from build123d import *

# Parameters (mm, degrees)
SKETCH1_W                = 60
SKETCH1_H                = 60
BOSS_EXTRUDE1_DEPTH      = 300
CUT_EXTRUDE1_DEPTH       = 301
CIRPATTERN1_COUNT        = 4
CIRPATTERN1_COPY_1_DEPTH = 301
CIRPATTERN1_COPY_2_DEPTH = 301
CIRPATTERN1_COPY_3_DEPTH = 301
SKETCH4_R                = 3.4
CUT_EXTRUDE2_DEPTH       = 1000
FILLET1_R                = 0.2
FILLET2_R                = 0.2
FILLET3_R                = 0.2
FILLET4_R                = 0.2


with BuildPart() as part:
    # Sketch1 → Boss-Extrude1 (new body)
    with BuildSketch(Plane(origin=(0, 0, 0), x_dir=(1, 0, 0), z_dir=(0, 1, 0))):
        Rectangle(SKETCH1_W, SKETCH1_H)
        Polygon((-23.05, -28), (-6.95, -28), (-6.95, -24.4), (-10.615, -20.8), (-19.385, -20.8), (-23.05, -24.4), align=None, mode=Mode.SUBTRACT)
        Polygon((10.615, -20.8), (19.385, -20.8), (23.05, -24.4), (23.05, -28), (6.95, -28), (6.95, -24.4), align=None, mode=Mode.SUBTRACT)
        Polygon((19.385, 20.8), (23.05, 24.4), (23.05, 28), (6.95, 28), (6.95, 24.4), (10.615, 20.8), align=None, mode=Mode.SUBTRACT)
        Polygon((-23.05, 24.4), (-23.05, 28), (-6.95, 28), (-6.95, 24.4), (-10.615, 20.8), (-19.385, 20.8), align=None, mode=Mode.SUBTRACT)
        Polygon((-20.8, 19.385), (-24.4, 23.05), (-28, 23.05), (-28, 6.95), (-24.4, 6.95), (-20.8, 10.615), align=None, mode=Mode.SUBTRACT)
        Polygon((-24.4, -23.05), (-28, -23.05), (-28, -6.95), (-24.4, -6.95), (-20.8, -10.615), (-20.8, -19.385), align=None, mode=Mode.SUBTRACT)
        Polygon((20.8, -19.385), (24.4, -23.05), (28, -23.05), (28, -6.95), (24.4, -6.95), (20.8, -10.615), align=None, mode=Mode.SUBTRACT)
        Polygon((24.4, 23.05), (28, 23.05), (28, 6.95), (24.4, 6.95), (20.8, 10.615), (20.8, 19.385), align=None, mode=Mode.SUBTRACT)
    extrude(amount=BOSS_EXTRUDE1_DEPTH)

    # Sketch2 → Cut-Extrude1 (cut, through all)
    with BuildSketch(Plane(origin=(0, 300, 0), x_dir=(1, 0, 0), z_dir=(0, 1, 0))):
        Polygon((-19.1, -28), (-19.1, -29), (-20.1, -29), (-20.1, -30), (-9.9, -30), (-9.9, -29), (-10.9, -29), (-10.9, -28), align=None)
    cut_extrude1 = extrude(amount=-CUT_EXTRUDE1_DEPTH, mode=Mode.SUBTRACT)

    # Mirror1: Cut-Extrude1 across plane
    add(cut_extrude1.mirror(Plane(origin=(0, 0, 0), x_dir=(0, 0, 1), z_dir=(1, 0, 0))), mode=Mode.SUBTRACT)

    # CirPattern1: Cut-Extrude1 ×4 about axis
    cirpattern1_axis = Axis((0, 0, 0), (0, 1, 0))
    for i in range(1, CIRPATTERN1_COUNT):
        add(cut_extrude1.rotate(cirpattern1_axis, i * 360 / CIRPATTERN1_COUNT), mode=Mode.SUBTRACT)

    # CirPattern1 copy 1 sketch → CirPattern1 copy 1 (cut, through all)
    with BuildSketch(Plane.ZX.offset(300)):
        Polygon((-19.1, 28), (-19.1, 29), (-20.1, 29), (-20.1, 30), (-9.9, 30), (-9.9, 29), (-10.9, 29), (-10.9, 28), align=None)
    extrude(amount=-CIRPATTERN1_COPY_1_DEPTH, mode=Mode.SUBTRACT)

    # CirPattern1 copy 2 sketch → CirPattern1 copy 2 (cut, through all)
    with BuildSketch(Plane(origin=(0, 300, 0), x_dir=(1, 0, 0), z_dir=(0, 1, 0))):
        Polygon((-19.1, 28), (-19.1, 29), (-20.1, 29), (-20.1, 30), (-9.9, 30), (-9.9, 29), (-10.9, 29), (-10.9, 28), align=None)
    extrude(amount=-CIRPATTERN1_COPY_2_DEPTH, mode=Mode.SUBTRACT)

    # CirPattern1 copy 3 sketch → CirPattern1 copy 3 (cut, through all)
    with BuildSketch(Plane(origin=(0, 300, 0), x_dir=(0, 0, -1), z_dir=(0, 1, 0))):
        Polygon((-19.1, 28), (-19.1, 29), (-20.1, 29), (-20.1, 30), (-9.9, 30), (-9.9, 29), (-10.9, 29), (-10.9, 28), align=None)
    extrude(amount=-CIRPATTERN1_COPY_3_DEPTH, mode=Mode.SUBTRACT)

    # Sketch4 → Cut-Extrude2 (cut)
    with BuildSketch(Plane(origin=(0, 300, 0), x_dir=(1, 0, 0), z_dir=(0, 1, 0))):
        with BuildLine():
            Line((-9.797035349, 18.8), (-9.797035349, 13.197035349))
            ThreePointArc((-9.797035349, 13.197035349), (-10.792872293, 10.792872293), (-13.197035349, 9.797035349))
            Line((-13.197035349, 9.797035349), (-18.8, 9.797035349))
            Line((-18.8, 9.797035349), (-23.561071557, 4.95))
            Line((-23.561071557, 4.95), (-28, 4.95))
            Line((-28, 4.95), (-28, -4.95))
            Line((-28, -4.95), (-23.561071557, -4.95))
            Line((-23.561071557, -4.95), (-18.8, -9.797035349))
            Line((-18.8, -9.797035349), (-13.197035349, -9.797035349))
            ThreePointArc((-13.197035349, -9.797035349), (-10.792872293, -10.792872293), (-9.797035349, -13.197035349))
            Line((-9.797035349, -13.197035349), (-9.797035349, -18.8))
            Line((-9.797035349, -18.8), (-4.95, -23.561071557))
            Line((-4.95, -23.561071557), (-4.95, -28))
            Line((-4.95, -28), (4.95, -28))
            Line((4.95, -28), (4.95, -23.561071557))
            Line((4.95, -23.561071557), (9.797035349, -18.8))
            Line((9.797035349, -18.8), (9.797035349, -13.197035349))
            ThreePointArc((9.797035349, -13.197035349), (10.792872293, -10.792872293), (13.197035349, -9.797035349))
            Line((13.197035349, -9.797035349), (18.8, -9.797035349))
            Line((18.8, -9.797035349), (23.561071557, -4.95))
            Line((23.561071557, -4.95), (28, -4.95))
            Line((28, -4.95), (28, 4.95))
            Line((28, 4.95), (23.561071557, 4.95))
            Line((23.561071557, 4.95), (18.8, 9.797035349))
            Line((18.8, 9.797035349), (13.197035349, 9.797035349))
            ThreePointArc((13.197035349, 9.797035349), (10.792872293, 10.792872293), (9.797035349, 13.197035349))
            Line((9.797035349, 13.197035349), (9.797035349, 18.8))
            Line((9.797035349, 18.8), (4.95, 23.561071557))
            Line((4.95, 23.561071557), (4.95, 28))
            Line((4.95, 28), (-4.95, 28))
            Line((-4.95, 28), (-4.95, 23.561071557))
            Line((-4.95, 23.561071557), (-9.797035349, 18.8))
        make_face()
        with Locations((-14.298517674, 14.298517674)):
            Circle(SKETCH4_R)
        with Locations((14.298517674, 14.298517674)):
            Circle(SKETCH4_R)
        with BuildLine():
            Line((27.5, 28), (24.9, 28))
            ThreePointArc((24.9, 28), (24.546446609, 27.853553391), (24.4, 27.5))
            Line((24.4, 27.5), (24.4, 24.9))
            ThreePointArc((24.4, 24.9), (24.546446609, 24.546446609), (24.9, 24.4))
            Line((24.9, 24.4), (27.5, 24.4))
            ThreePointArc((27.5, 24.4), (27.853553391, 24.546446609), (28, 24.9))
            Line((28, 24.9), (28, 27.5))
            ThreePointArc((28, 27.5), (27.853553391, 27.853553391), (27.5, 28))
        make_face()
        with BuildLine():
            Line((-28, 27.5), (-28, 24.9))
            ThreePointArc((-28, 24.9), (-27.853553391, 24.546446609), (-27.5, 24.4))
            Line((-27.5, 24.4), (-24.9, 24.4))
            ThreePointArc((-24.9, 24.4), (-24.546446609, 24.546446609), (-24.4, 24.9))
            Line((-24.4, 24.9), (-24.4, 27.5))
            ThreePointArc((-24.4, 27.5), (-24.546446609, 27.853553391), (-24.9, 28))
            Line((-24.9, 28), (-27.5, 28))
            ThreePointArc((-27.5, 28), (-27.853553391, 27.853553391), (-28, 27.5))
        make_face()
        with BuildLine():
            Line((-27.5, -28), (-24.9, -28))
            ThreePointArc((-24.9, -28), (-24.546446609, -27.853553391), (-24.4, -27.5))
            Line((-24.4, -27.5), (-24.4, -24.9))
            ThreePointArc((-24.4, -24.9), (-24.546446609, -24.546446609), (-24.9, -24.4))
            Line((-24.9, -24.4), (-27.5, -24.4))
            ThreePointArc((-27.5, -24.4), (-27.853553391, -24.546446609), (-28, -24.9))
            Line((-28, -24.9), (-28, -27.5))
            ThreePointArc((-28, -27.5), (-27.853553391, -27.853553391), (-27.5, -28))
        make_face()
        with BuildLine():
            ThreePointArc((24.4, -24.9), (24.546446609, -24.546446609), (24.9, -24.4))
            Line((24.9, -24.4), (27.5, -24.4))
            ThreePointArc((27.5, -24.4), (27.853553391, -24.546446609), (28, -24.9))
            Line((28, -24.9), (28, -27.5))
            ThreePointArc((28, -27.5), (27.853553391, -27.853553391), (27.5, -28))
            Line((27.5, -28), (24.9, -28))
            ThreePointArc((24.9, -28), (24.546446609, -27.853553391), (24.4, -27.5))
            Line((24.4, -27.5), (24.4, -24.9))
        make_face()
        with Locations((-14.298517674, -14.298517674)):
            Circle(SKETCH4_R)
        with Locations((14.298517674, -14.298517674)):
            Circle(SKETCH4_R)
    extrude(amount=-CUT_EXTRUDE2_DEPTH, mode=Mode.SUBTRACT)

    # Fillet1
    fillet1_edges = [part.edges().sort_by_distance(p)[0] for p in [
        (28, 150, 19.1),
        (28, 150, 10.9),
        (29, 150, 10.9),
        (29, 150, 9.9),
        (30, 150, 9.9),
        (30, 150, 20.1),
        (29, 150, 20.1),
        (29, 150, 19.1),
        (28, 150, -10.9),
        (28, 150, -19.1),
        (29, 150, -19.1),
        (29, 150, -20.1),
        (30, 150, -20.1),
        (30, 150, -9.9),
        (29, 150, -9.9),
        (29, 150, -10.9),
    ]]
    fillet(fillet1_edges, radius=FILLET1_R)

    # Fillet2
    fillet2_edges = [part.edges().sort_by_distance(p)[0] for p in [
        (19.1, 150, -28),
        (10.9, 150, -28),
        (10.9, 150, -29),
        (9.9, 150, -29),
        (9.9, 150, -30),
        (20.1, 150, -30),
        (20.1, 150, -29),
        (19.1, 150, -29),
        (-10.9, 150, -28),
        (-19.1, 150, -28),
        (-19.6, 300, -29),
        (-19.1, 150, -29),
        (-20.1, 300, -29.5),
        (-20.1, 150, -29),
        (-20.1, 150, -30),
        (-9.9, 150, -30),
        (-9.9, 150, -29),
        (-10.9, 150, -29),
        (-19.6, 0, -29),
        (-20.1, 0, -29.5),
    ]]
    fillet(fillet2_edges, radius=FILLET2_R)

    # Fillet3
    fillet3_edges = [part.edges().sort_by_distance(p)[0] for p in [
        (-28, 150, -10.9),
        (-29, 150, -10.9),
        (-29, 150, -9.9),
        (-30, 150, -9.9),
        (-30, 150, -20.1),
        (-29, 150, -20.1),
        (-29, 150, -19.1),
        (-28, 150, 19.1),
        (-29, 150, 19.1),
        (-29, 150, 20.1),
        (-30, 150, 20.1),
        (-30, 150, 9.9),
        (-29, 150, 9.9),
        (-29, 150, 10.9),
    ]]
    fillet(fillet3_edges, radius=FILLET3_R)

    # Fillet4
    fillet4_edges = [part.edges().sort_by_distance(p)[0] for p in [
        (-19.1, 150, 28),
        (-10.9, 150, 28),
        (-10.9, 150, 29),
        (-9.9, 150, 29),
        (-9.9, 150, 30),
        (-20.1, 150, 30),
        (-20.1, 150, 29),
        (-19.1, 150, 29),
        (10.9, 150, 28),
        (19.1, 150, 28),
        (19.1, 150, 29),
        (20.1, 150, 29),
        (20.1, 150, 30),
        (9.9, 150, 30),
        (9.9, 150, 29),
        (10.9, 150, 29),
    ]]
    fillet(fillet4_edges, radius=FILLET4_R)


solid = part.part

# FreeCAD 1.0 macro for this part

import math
import FreeCAD as App
import Part
import Sketcher


def edges_at(feature, points):
    """Names of the edges that pass closest to the given points."""
    edges = feature.Shape.Edges
    near = lambda p: min(range(len(edges)), key=lambda i: edges[i].distToShape(Part.Vertex(*p))[0])
    return sorted({f"Edge{near(p) + 1}" for p in points})

doc = App.newDocument("Part")
body = doc.addObject("PartDesign::Body", "Body")

sketch1 = doc.addObject("Sketcher::SketchObject", "Sketch")
body.addObject(sketch1)
sketch1.AttachmentSupport = (doc.XZ_Plane, [""])
sketch1.MapMode = "FlatFace"
sketch1.addGeometry([
    Part.LineSegment(App.Vector(-30, -30, 0), App.Vector(-30, 30, 0)),
    Part.LineSegment(App.Vector(-30, 30, 0), App.Vector(30, 30, 0)),
    Part.LineSegment(App.Vector(30, 30, 0), App.Vector(30, -30, 0)),
    Part.LineSegment(App.Vector(30, -30, 0), App.Vector(-30, -30, 0)),
    Part.LineSegment(App.Vector(-7, 28, 0), App.Vector(-23.1, 28, 0)),
    Part.LineSegment(App.Vector(-23.1, 28, 0), App.Vector(-23.1, 24.4, 0)),
    Part.LineSegment(App.Vector(-23.1, 24.4, 0), App.Vector(-19.4, 20.8, 0)),
    Part.LineSegment(App.Vector(-19.4, 20.8, 0), App.Vector(-10.6, 20.8, 0)),
    Part.LineSegment(App.Vector(-10.6, 20.8, 0), App.Vector(-7, 24.4, 0)),
    Part.LineSegment(App.Vector(-7, 24.4, 0), App.Vector(-7, 28, 0)),
    Part.LineSegment(App.Vector(-20.8, 19.4, 0), App.Vector(-24.4, 23.1, 0)),
    Part.LineSegment(App.Vector(-24.4, 23.1, 0), App.Vector(-28, 23.1, 0)),
    Part.LineSegment(App.Vector(-28, 23.1, 0), App.Vector(-28, 7, 0)),
    Part.LineSegment(App.Vector(-28, 7, 0), App.Vector(-24.4, 7, 0)),
    Part.LineSegment(App.Vector(-24.4, 7, 0), App.Vector(-20.8, 10.6, 0)),
    Part.LineSegment(App.Vector(-20.8, 10.6, 0), App.Vector(-20.8, 19.4, 0)),
    Part.LineSegment(App.Vector(7, 24.4, 0), App.Vector(10.6, 20.8, 0)),
    Part.LineSegment(App.Vector(10.6, 20.8, 0), App.Vector(19.4, 20.8, 0)),
    Part.LineSegment(App.Vector(19.4, 20.8, 0), App.Vector(23.1, 24.4, 0)),
    Part.LineSegment(App.Vector(23.1, 24.4, 0), App.Vector(23.1, 28, 0)),
    Part.LineSegment(App.Vector(23.1, 28, 0), App.Vector(7, 28, 0)),
    Part.LineSegment(App.Vector(7, 28, 0), App.Vector(7, 24.4, 0)),
    Part.LineSegment(App.Vector(24.4, 23.1, 0), App.Vector(20.8, 19.4, 0)),
    Part.LineSegment(App.Vector(20.8, 19.4, 0), App.Vector(20.8, 10.6, 0)),
    Part.LineSegment(App.Vector(20.8, 10.6, 0), App.Vector(24.4, 7, 0)),
    Part.LineSegment(App.Vector(24.4, 7, 0), App.Vector(28, 7, 0)),
    Part.LineSegment(App.Vector(28, 7, 0), App.Vector(28, 23.1, 0)),
    Part.LineSegment(App.Vector(28, 23.1, 0), App.Vector(24.4, 23.1, 0)),
    Part.LineSegment(App.Vector(-24.4, -23.1, 0), App.Vector(-20.8, -19.4, 0)),
    Part.LineSegment(App.Vector(-20.8, -19.4, 0), App.Vector(-20.8, -10.6, 0)),
    Part.LineSegment(App.Vector(-20.8, -10.6, 0), App.Vector(-24.4, -7, 0)),
    Part.LineSegment(App.Vector(-24.4, -7, 0), App.Vector(-28, -7, 0)),
    Part.LineSegment(App.Vector(-28, -7, 0), App.Vector(-28, -23.1, 0)),
    Part.LineSegment(App.Vector(-28, -23.1, 0), App.Vector(-24.4, -23.1, 0)),
    Part.LineSegment(App.Vector(-19.4, -20.8, 0), App.Vector(-23.1, -24.4, 0)),
    Part.LineSegment(App.Vector(-23.1, -24.4, 0), App.Vector(-23.1, -28, 0)),
    Part.LineSegment(App.Vector(-23.1, -28, 0), App.Vector(-7, -28, 0)),
    Part.LineSegment(App.Vector(-7, -28, 0), App.Vector(-7, -24.4, 0)),
    Part.LineSegment(App.Vector(-7, -24.4, 0), App.Vector(-10.6, -20.8, 0)),
    Part.LineSegment(App.Vector(-10.6, -20.8, 0), App.Vector(-19.4, -20.8, 0)),
    Part.LineSegment(App.Vector(20.8, -19.4, 0), App.Vector(24.4, -23.1, 0)),
    Part.LineSegment(App.Vector(24.4, -23.1, 0), App.Vector(28, -23.1, 0)),
    Part.LineSegment(App.Vector(28, -23.1, 0), App.Vector(28, -7, 0)),
    Part.LineSegment(App.Vector(28, -7, 0), App.Vector(24.4, -7, 0)),
    Part.LineSegment(App.Vector(24.4, -7, 0), App.Vector(20.8, -10.6, 0)),
    Part.LineSegment(App.Vector(20.8, -10.6, 0), App.Vector(20.8, -19.4, 0)),
    Part.LineSegment(App.Vector(23.1, -24.4, 0), App.Vector(19.4, -20.8, 0)),
    Part.LineSegment(App.Vector(19.4, -20.8, 0), App.Vector(10.6, -20.8, 0)),
    Part.LineSegment(App.Vector(10.6, -20.8, 0), App.Vector(7, -24.4, 0)),
    Part.LineSegment(App.Vector(7, -24.4, 0), App.Vector(7, -28, 0)),
    Part.LineSegment(App.Vector(7, -28, 0), App.Vector(23.1, -28, 0)),
    Part.LineSegment(App.Vector(23.1, -28, 0), App.Vector(23.1, -24.4, 0)),
], False)
sketch1.addConstraint([
    Sketcher.Constraint("Coincident", 0, 2, 1, 1),
    Sketcher.Constraint("Coincident", 1, 2, 2, 1),
    Sketcher.Constraint("Coincident", 2, 2, 3, 1),
    Sketcher.Constraint("Coincident", 3, 2, 0, 1),
    Sketcher.Constraint("Coincident", 4, 2, 5, 1),
    Sketcher.Constraint("Coincident", 5, 2, 6, 1),
    Sketcher.Constraint("Coincident", 6, 2, 7, 1),
    Sketcher.Constraint("Coincident", 7, 2, 8, 1),
    Sketcher.Constraint("Coincident", 8, 2, 9, 1),
    Sketcher.Constraint("Coincident", 9, 2, 4, 1),
    Sketcher.Constraint("Coincident", 10, 2, 11, 1),
    Sketcher.Constraint("Coincident", 11, 2, 12, 1),
    Sketcher.Constraint("Coincident", 12, 2, 13, 1),
    Sketcher.Constraint("Coincident", 13, 2, 14, 1),
    Sketcher.Constraint("Coincident", 14, 2, 15, 1),
    Sketcher.Constraint("Coincident", 15, 2, 10, 1),
    Sketcher.Constraint("Coincident", 16, 2, 17, 1),
    Sketcher.Constraint("Coincident", 17, 2, 18, 1),
    Sketcher.Constraint("Coincident", 18, 2, 19, 1),
    Sketcher.Constraint("Coincident", 19, 2, 20, 1),
    Sketcher.Constraint("Coincident", 20, 2, 21, 1),
    Sketcher.Constraint("Coincident", 21, 2, 16, 1),
    Sketcher.Constraint("Coincident", 22, 2, 23, 1),
    Sketcher.Constraint("Coincident", 23, 2, 24, 1),
    Sketcher.Constraint("Coincident", 24, 2, 25, 1),
    Sketcher.Constraint("Coincident", 25, 2, 26, 1),
    Sketcher.Constraint("Coincident", 26, 2, 27, 1),
    Sketcher.Constraint("Coincident", 27, 2, 22, 1),
    Sketcher.Constraint("Coincident", 28, 2, 29, 1),
    Sketcher.Constraint("Coincident", 29, 2, 30, 1),
    Sketcher.Constraint("Coincident", 30, 2, 31, 1),
    Sketcher.Constraint("Coincident", 31, 2, 32, 1),
    Sketcher.Constraint("Coincident", 32, 2, 33, 1),
    Sketcher.Constraint("Coincident", 33, 2, 28, 1),
    Sketcher.Constraint("Coincident", 34, 2, 35, 1),
    Sketcher.Constraint("Coincident", 35, 2, 36, 1),
    Sketcher.Constraint("Coincident", 36, 2, 37, 1),
    Sketcher.Constraint("Coincident", 37, 2, 38, 1),
    Sketcher.Constraint("Coincident", 38, 2, 39, 1),
    Sketcher.Constraint("Coincident", 39, 2, 34, 1),
    Sketcher.Constraint("Coincident", 40, 2, 41, 1),
    Sketcher.Constraint("Coincident", 41, 2, 42, 1),
    Sketcher.Constraint("Coincident", 42, 2, 43, 1),
    Sketcher.Constraint("Coincident", 43, 2, 44, 1),
    Sketcher.Constraint("Coincident", 44, 2, 45, 1),
    Sketcher.Constraint("Coincident", 45, 2, 40, 1),
    Sketcher.Constraint("Coincident", 46, 2, 47, 1),
    Sketcher.Constraint("Coincident", 47, 2, 48, 1),
    Sketcher.Constraint("Coincident", 48, 2, 49, 1),
    Sketcher.Constraint("Coincident", 49, 2, 50, 1),
    Sketcher.Constraint("Coincident", 50, 2, 51, 1),
    Sketcher.Constraint("Coincident", 51, 2, 46, 1),
    Sketcher.Constraint("Vertical", 0),
    Sketcher.Constraint("Horizontal", 1),
    Sketcher.Constraint("Vertical", 2),
    Sketcher.Constraint("Horizontal", 3),
    Sketcher.Constraint("Horizontal", 4),
    Sketcher.Constraint("Vertical", 5),
    Sketcher.Constraint("Horizontal", 7),
    Sketcher.Constraint("Vertical", 9),
    Sketcher.Constraint("Horizontal", 11),
    Sketcher.Constraint("Vertical", 12),
    Sketcher.Constraint("Horizontal", 13),
    Sketcher.Constraint("Vertical", 15),
    Sketcher.Constraint("Horizontal", 17),
    Sketcher.Constraint("Vertical", 19),
    Sketcher.Constraint("Horizontal", 20),
    Sketcher.Constraint("Vertical", 21),
    Sketcher.Constraint("Vertical", 23),
    Sketcher.Constraint("Horizontal", 25),
    Sketcher.Constraint("Vertical", 26),
    Sketcher.Constraint("Horizontal", 27),
    Sketcher.Constraint("Vertical", 29),
    Sketcher.Constraint("Horizontal", 31),
    Sketcher.Constraint("Vertical", 32),
    Sketcher.Constraint("Horizontal", 33),
    Sketcher.Constraint("Vertical", 35),
    Sketcher.Constraint("Horizontal", 36),
    Sketcher.Constraint("Vertical", 37),
    Sketcher.Constraint("Horizontal", 39),
    Sketcher.Constraint("Horizontal", 41),
    Sketcher.Constraint("Vertical", 42),
    Sketcher.Constraint("Horizontal", 43),
    Sketcher.Constraint("Vertical", 45),
    Sketcher.Constraint("Horizontal", 47),
    Sketcher.Constraint("Vertical", 49),
    Sketcher.Constraint("Horizontal", 50),
    Sketcher.Constraint("Vertical", 51),
    Sketcher.Constraint("Symmetric", 0, 2, 2, 2, -1, 1),
    Sketcher.Constraint("Symmetric", 22, 2, 28, 2, -1, 1),
    Sketcher.Constraint("Symmetric", 24, 2, 30, 2, -1, 1),
    Sketcher.Constraint("Symmetric", 26, 2, 32, 2, -1, 1),
    Sketcher.Constraint("Symmetric", 18, 2, 34, 2, -1, 1),
    Sketcher.Constraint("Symmetric", 20, 2, 36, 2, -1, 1),
    Sketcher.Constraint("Symmetric", 16, 2, 38, 2, -1, 1),
    Sketcher.Constraint("Symmetric", 10, 2, 40, 2, -1, 1),
    Sketcher.Constraint("Symmetric", 12, 2, 42, 2, -1, 1),
    Sketcher.Constraint("Symmetric", 14, 2, 44, 2, -1, 1),
    Sketcher.Constraint("Symmetric", 6, 2, 46, 2, -1, 1),
    Sketcher.Constraint("Symmetric", 8, 2, 48, 2, -1, 1),
    Sketcher.Constraint("Symmetric", 4, 2, 50, 2, -1, 1),
    Sketcher.Constraint("Symmetric", 7, 2, 16, 2, -2),
    Sketcher.Constraint("Symmetric", 5, 2, 18, 2, -2),
    Sketcher.Constraint("Symmetric", 9, 2, 20, 2, -2),
    Sketcher.Constraint("Symmetric", 15, 2, 22, 2, -2),
    Sketcher.Constraint("Symmetric", 13, 2, 24, 2, -2),
    Sketcher.Constraint("Symmetric", 11, 2, 26, 2, -2),
    Sketcher.Constraint("Perpendicular", 8, 10),
    Sketcher.Constraint("Perpendicular", 6, 14),
    Sketcher.Constraint("Perpendicular", 14, 16),
    Sketcher.Constraint("Perpendicular", 10, 18),
    Sketcher.Constraint("Perpendicular", 16, 22),
    Sketcher.Constraint("Perpendicular", 18, 24),
    Sketcher.Constraint("Parallel", 22, 28),
    Sketcher.Constraint("Parallel", 24, 30),
    Sketcher.Constraint("Perpendicular", 30, 34),
    Sketcher.Constraint("Perpendicular", 28, 38),
    Sketcher.Constraint("Perpendicular", 34, 40),
    Sketcher.Constraint("Perpendicular", 38, 44),
    Sketcher.Constraint("Perpendicular", 44, 46),
    Sketcher.Constraint("Perpendicular", 40, 48),
    Sketcher.Constraint("Horizontal", 5, 2, 8, 2),
    Sketcher.Constraint("Horizontal", 18, 2, 21, 2),
    Sketcher.Constraint("Vertical", 10, 2, 13, 2),
    Sketcher.Constraint("Equal", 3, 0),
    Sketcher.Constraint("Equal", 43, 5),
    Sketcher.Constraint("Equal", 50, 12),
    Sketcher.Constraint("Equal", 47, 15),
    Sketcher.Constraint("DistanceX", 1, 1, 1, 2, 60.0),
    Sketcher.Constraint("DistanceX", 4, 2, 4, 1, 16.1),
    Sketcher.Constraint("DistanceX", 11, 2, 11, 1, 3.6),
    Sketcher.Constraint("DistanceY", -1, 1, 4, 2, 28.0),
    Sketcher.Constraint("DistanceX", 11, 2, -1, 1, 28.0),
    Sketcher.Constraint("DistanceX", 6, 2, 16, 2, 30.0),
    Sketcher.Constraint("DistanceY", 28, 2, 14, 2, 30.0),
    Sketcher.Constraint("DistanceX", 7, 1, 7, 2, 8.77),
    Sketcher.Constraint("DistanceY", -1, 1, 6, 2, 20.8),
])
pad1 = doc.addObject("PartDesign::Pad", "Pad")
body.addObject(pad1)
pad1.Profile = sketch1
pad1.Length = 300
pad1.Reversed = True

sketch2 = doc.addObject("Sketcher::SketchObject", "Sketch001")
body.addObject(sketch2)
sketch2.AttachmentSupport = (doc.XZ_Plane, [""])
sketch2.MapMode = "FlatFace"
sketch2.AttachmentOffset = App.Placement(App.Vector(0, 0, -300), App.Rotation())
sketch2.addGeometry([
    Part.LineSegment(App.Vector(-19.1, 28, 0), App.Vector(-19.1, 29, 0)),
    Part.LineSegment(App.Vector(-19.1, 29, 0), App.Vector(-20.1, 29, 0)),
    Part.LineSegment(App.Vector(-20.1, 29, 0), App.Vector(-20.1, 30, 0)),
    Part.LineSegment(App.Vector(-20.1, 30, 0), App.Vector(-9.9, 30, 0)),
    Part.LineSegment(App.Vector(-9.9, 30, 0), App.Vector(-9.9, 29, 0)),
    Part.LineSegment(App.Vector(-9.9, 29, 0), App.Vector(-10.9, 29, 0)),
    Part.LineSegment(App.Vector(-10.9, 29, 0), App.Vector(-10.9, 28, 0)),
    Part.LineSegment(App.Vector(-10.9, 28, 0), App.Vector(-19.1, 28, 0)),
], False)
sketch2.addConstraint([
    Sketcher.Constraint("Coincident", 0, 2, 1, 1),
    Sketcher.Constraint("Coincident", 1, 2, 2, 1),
    Sketcher.Constraint("Coincident", 2, 2, 3, 1),
    Sketcher.Constraint("Coincident", 3, 2, 4, 1),
    Sketcher.Constraint("Coincident", 4, 2, 5, 1),
    Sketcher.Constraint("Coincident", 5, 2, 6, 1),
    Sketcher.Constraint("Coincident", 6, 2, 7, 1),
    Sketcher.Constraint("Coincident", 7, 2, 0, 1),
    Sketcher.Constraint("Vertical", 0),
    Sketcher.Constraint("Horizontal", 1),
    Sketcher.Constraint("Vertical", 2),
    Sketcher.Constraint("Horizontal", 3),
    Sketcher.Constraint("Vertical", 4),
    Sketcher.Constraint("Horizontal", 5),
    Sketcher.Constraint("Vertical", 6),
    Sketcher.Constraint("Horizontal", 7),
    Sketcher.Constraint("Horizontal", 1, 2, 4, 2),
    Sketcher.Constraint("Equal", 1, 5),
    Sketcher.Constraint("Equal", 5, 0),
    Sketcher.Constraint("Equal", 0, 2),
    Sketcher.Constraint("DistanceX", 1, 2, 1, 1, 1.0),
    Sketcher.Constraint("DistanceX", 3, 1, 3, 2, 10.2),
    Sketcher.Constraint("DistanceY", -1, 1, 0, 2, 29.0),
    Sketcher.Constraint("DistanceX", 0, 2, -1, 1, 19.1),
])
pocket1 = doc.addObject("PartDesign::Pocket", "Pocket")
body.addObject(pocket1)
pocket1.Profile = sketch2
pocket1.Type = "ThroughAll"
pocket1.Reversed = True
doc.recompute()

mirrored = doc.addObject("PartDesign::Mirrored", "Mirrored")
body.addObject(mirrored)
mirrored.Originals = [pocket1]
mirrored.MirrorPlane = (doc.YZ_Plane, [""])
body.Tip = mirrored
doc.recompute()

polarpattern = doc.addObject("PartDesign::PolarPattern", "PolarPattern")
body.addObject(polarpattern)
polarpattern.Originals = [pocket1]
polarpattern.Axis = (doc.Y_Axis, [""])
polarpattern.Angle = 360
polarpattern.Occurrences = 4
body.Tip = polarpattern

sketch3 = doc.addObject("Sketcher::SketchObject", "Sketch002")
body.addObject(sketch3)
sketch3.AttachmentSupport = (doc.XZ_Plane, [""])
sketch3.MapMode = "FlatFace"
sketch3.AttachmentOffset = App.Placement(App.Vector(0, 0, -300), App.Rotation())
sketch3.addGeometry([
    Part.LineSegment(App.Vector(29, -19.1, 0), App.Vector(28, -19.1, 0)),
    Part.LineSegment(App.Vector(28, -19.1, 0), App.Vector(28, -10.9, 0)),
    Part.LineSegment(App.Vector(28, -10.9, 0), App.Vector(29, -10.9, 0)),
    Part.LineSegment(App.Vector(29, -10.9, 0), App.Vector(29, -9.9, 0)),
    Part.LineSegment(App.Vector(29, -9.9, 0), App.Vector(30, -9.9, 0)),
    Part.LineSegment(App.Vector(30, -9.9, 0), App.Vector(30, -20.1, 0)),
    Part.LineSegment(App.Vector(30, -20.1, 0), App.Vector(29, -20.1, 0)),
    Part.LineSegment(App.Vector(29, -20.1, 0), App.Vector(29, -19.1, 0)),
], False)
sketch3.addConstraint([
    Sketcher.Constraint("Coincident", 0, 2, 1, 1),
    Sketcher.Constraint("Coincident", 1, 2, 2, 1),
    Sketcher.Constraint("Coincident", 2, 2, 3, 1),
    Sketcher.Constraint("Coincident", 3, 2, 4, 1),
    Sketcher.Constraint("Coincident", 4, 2, 5, 1),
    Sketcher.Constraint("Coincident", 5, 2, 6, 1),
    Sketcher.Constraint("Coincident", 6, 2, 7, 1),
    Sketcher.Constraint("Coincident", 7, 2, 0, 1),
    Sketcher.Constraint("Horizontal", 0),
    Sketcher.Constraint("Vertical", 1),
    Sketcher.Constraint("Horizontal", 2),
    Sketcher.Constraint("Vertical", 3),
    Sketcher.Constraint("Horizontal", 4),
    Sketcher.Constraint("Vertical", 5),
    Sketcher.Constraint("Horizontal", 6),
    Sketcher.Constraint("Vertical", 7),
    Sketcher.Constraint("Vertical", 3, 2, 6, 2),
    Sketcher.Constraint("Equal", 2, 4),
    Sketcher.Constraint("Equal", 6, 3),
    Sketcher.Constraint("Equal", 3, 7),
    Sketcher.Constraint("DistanceX", 0, 2, 0, 1, 1.0),
    Sketcher.Constraint("DistanceY", 1, 1, 1, 2, 8.2),
    Sketcher.Constraint("DistanceX", -1, 1, 0, 2, 28.0),
    Sketcher.Constraint("DistanceY", 0, 2, -1, 1, 19.1),
])
pocket2 = doc.addObject("PartDesign::Pocket", "Pocket001")
body.addObject(pocket2)
pocket2.Profile = sketch3
pocket2.Type = "ThroughAll"
pocket2.Reversed = True

sketch4 = doc.addObject("Sketcher::SketchObject", "Sketch003")
body.addObject(sketch4)
sketch4.AttachmentSupport = (doc.XZ_Plane, [""])
sketch4.MapMode = "FlatFace"
sketch4.AttachmentOffset = App.Placement(App.Vector(0, 0, -300), App.Rotation())
sketch4.addGeometry([
    Part.LineSegment(App.Vector(-19.1, -29, 0), App.Vector(-19.1, -28, 0)),
    Part.LineSegment(App.Vector(-19.1, -28, 0), App.Vector(-10.9, -28, 0)),
    Part.LineSegment(App.Vector(-10.9, -28, 0), App.Vector(-10.9, -29, 0)),
    Part.LineSegment(App.Vector(-10.9, -29, 0), App.Vector(-9.9, -29, 0)),
    Part.LineSegment(App.Vector(-9.9, -29, 0), App.Vector(-9.9, -30, 0)),
    Part.LineSegment(App.Vector(-9.9, -30, 0), App.Vector(-20.1, -30, 0)),
    Part.LineSegment(App.Vector(-20.1, -30, 0), App.Vector(-20.1, -29, 0)),
    Part.LineSegment(App.Vector(-20.1, -29, 0), App.Vector(-19.1, -29, 0)),
], False)
sketch4.addConstraint([
    Sketcher.Constraint("Coincident", 0, 2, 1, 1),
    Sketcher.Constraint("Coincident", 1, 2, 2, 1),
    Sketcher.Constraint("Coincident", 2, 2, 3, 1),
    Sketcher.Constraint("Coincident", 3, 2, 4, 1),
    Sketcher.Constraint("Coincident", 4, 2, 5, 1),
    Sketcher.Constraint("Coincident", 5, 2, 6, 1),
    Sketcher.Constraint("Coincident", 6, 2, 7, 1),
    Sketcher.Constraint("Coincident", 7, 2, 0, 1),
    Sketcher.Constraint("Vertical", 0),
    Sketcher.Constraint("Horizontal", 1),
    Sketcher.Constraint("Vertical", 2),
    Sketcher.Constraint("Horizontal", 3),
    Sketcher.Constraint("Vertical", 4),
    Sketcher.Constraint("Horizontal", 5),
    Sketcher.Constraint("Vertical", 6),
    Sketcher.Constraint("Horizontal", 7),
    Sketcher.Constraint("Horizontal", 3, 2, 6, 2),
    Sketcher.Constraint("Equal", 3, 7),
    Sketcher.Constraint("Equal", 7, 0),
    Sketcher.Constraint("Equal", 2, 4),
    Sketcher.Constraint("DistanceX", 3, 1, 3, 2, 1.0),
    Sketcher.Constraint("DistanceX", 1, 1, 1, 2, 8.2),
    Sketcher.Constraint("DistanceY", 0, 2, -1, 1, 28.0),
    Sketcher.Constraint("DistanceX", 0, 2, -1, 1, 19.1),
])
pocket3 = doc.addObject("PartDesign::Pocket", "Pocket002")
body.addObject(pocket3)
pocket3.Profile = sketch4
pocket3.Type = "ThroughAll"
pocket3.Reversed = True

sketch5 = doc.addObject("Sketcher::SketchObject", "Sketch004")
body.addObject(sketch5)
sketch5.AttachmentSupport = (doc.XZ_Plane, [""])
sketch5.MapMode = "FlatFace"
sketch5.AttachmentOffset = App.Placement(App.Vector(0, 0, -300), App.Rotation())
sketch5.addGeometry([
    Part.LineSegment(App.Vector(-29, 19.1, 0), App.Vector(-28, 19.1, 0)),
    Part.LineSegment(App.Vector(-28, 19.1, 0), App.Vector(-28, 10.9, 0)),
    Part.LineSegment(App.Vector(-28, 10.9, 0), App.Vector(-29, 10.9, 0)),
    Part.LineSegment(App.Vector(-29, 10.9, 0), App.Vector(-29, 9.9, 0)),
    Part.LineSegment(App.Vector(-29, 9.9, 0), App.Vector(-30, 9.9, 0)),
    Part.LineSegment(App.Vector(-30, 9.9, 0), App.Vector(-30, 20.1, 0)),
    Part.LineSegment(App.Vector(-30, 20.1, 0), App.Vector(-29, 20.1, 0)),
    Part.LineSegment(App.Vector(-29, 20.1, 0), App.Vector(-29, 19.1, 0)),
], False)
sketch5.addConstraint([
    Sketcher.Constraint("Coincident", 0, 2, 1, 1),
    Sketcher.Constraint("Coincident", 1, 2, 2, 1),
    Sketcher.Constraint("Coincident", 2, 2, 3, 1),
    Sketcher.Constraint("Coincident", 3, 2, 4, 1),
    Sketcher.Constraint("Coincident", 4, 2, 5, 1),
    Sketcher.Constraint("Coincident", 5, 2, 6, 1),
    Sketcher.Constraint("Coincident", 6, 2, 7, 1),
    Sketcher.Constraint("Coincident", 7, 2, 0, 1),
    Sketcher.Constraint("Horizontal", 0),
    Sketcher.Constraint("Vertical", 1),
    Sketcher.Constraint("Horizontal", 2),
    Sketcher.Constraint("Vertical", 3),
    Sketcher.Constraint("Horizontal", 4),
    Sketcher.Constraint("Vertical", 5),
    Sketcher.Constraint("Horizontal", 6),
    Sketcher.Constraint("Vertical", 7),
    Sketcher.Constraint("Vertical", 3, 2, 6, 2),
    Sketcher.Constraint("Equal", 2, 4),
    Sketcher.Constraint("Equal", 6, 3),
    Sketcher.Constraint("Equal", 3, 7),
    Sketcher.Constraint("DistanceX", 0, 1, 0, 2, 1.0),
    Sketcher.Constraint("DistanceY", 1, 2, 1, 1, 8.2),
    Sketcher.Constraint("DistanceX", 0, 2, -1, 1, 28.0),
    Sketcher.Constraint("DistanceY", -1, 1, 0, 2, 19.1),
])
pocket4 = doc.addObject("PartDesign::Pocket", "Pocket003")
body.addObject(pocket4)
pocket4.Profile = sketch5
pocket4.Type = "ThroughAll"
pocket4.Reversed = True

sketch6 = doc.addObject("Sketcher::SketchObject", "Sketch005")
body.addObject(sketch6)
sketch6.AttachmentSupport = (doc.XZ_Plane, [""])
sketch6.MapMode = "FlatFace"
sketch6.AttachmentOffset = App.Placement(App.Vector(0, 0, -300), App.Rotation())
sketch6.addGeometry([
    Part.LineSegment(App.Vector(-9.8, -18.8, 0), App.Vector(-9.8, -13.2, 0)),
    Part.ArcOfCircle(Part.Circle(App.Vector(-13.2, -13.2, 0), App.Vector(0, 0, 1), 3.4), math.radians(0), math.radians(90)),
    Part.LineSegment(App.Vector(-13.2, -9.8, 0), App.Vector(-18.8, -9.8, 0)),
    Part.LineSegment(App.Vector(-18.8, -9.8, 0), App.Vector(-23.56, -4.95, 0)),
    Part.LineSegment(App.Vector(-23.56, -4.95, 0), App.Vector(-28, -4.95, 0)),
    Part.LineSegment(App.Vector(-28, -4.95, 0), App.Vector(-28, 4.95, 0)),
    Part.LineSegment(App.Vector(-28, 4.95, 0), App.Vector(-23.56, 4.95, 0)),
    Part.LineSegment(App.Vector(-23.56, 4.95, 0), App.Vector(-18.8, 9.8, 0)),
    Part.LineSegment(App.Vector(-18.8, 9.8, 0), App.Vector(-13.2, 9.8, 0)),
    Part.ArcOfCircle(Part.Circle(App.Vector(-13.2, 13.2, 0), App.Vector(0, 0, 1), 3.4), math.radians(-90), math.radians(0)),
    Part.LineSegment(App.Vector(-9.8, 13.2, 0), App.Vector(-9.8, 18.8, 0)),
    Part.LineSegment(App.Vector(-9.8, 18.8, 0), App.Vector(-4.95, 23.56, 0)),
    Part.LineSegment(App.Vector(-4.95, 23.56, 0), App.Vector(-4.95, 28, 0)),
    Part.LineSegment(App.Vector(-4.95, 28, 0), App.Vector(4.95, 28, 0)),
    Part.LineSegment(App.Vector(4.95, 28, 0), App.Vector(4.95, 23.56, 0)),
    Part.LineSegment(App.Vector(4.95, 23.56, 0), App.Vector(9.8, 18.8, 0)),
    Part.LineSegment(App.Vector(9.8, 18.8, 0), App.Vector(9.8, 13.2, 0)),
    Part.ArcOfCircle(Part.Circle(App.Vector(13.2, 13.2, 0), App.Vector(0, 0, 1), 3.4), math.radians(180), math.radians(270)),
    Part.LineSegment(App.Vector(13.2, 9.8, 0), App.Vector(18.8, 9.8, 0)),
    Part.LineSegment(App.Vector(18.8, 9.8, 0), App.Vector(23.56, 4.95, 0)),
    Part.LineSegment(App.Vector(23.56, 4.95, 0), App.Vector(28, 4.95, 0)),
    Part.LineSegment(App.Vector(28, 4.95, 0), App.Vector(28, -4.95, 0)),
    Part.LineSegment(App.Vector(28, -4.95, 0), App.Vector(23.56, -4.95, 0)),
    Part.LineSegment(App.Vector(23.56, -4.95, 0), App.Vector(18.8, -9.8, 0)),
    Part.LineSegment(App.Vector(18.8, -9.8, 0), App.Vector(13.2, -9.8, 0)),
    Part.ArcOfCircle(Part.Circle(App.Vector(13.2, -13.2, 0), App.Vector(0, 0, 1), 3.4), math.radians(90), math.radians(180)),
    Part.LineSegment(App.Vector(9.8, -13.2, 0), App.Vector(9.8, -18.8, 0)),
    Part.LineSegment(App.Vector(9.8, -18.8, 0), App.Vector(4.95, -23.56, 0)),
    Part.LineSegment(App.Vector(4.95, -23.56, 0), App.Vector(4.95, -28, 0)),
    Part.LineSegment(App.Vector(4.95, -28, 0), App.Vector(-4.95, -28, 0)),
    Part.LineSegment(App.Vector(-4.95, -28, 0), App.Vector(-4.95, -23.56, 0)),
    Part.LineSegment(App.Vector(-4.95, -23.56, 0), App.Vector(-9.8, -18.8, 0)),
    Part.Circle(App.Vector(-14.3, -14.3, 0), App.Vector(0, 0, 1), 3.4),
    Part.Circle(App.Vector(14.3, -14.3, 0), App.Vector(0, 0, 1), 3.4),
    Part.LineSegment(App.Vector(27.5, -28, 0), App.Vector(24.9, -28, 0)),
    Part.ArcOfCircle(Part.Circle(App.Vector(24.9, -27.5, 0), App.Vector(0, 0, 1), 0.5), math.radians(180), math.radians(270)),
    Part.LineSegment(App.Vector(24.4, -27.5, 0), App.Vector(24.4, -24.9, 0)),
    Part.ArcOfCircle(Part.Circle(App.Vector(24.9, -24.9, 0), App.Vector(0, 0, 1), 0.5), math.radians(90), math.radians(180)),
    Part.LineSegment(App.Vector(24.9, -24.4, 0), App.Vector(27.5, -24.4, 0)),
    Part.ArcOfCircle(Part.Circle(App.Vector(27.5, -24.9, 0), App.Vector(0, 0, 1), 0.5), math.radians(0), math.radians(90)),
    Part.LineSegment(App.Vector(28, -24.9, 0), App.Vector(28, -27.5, 0)),
    Part.ArcOfCircle(Part.Circle(App.Vector(27.5, -27.5, 0), App.Vector(0, 0, 1), 0.5), math.radians(-90), math.radians(0)),
    Part.LineSegment(App.Vector(-28, -27.5, 0), App.Vector(-28, -24.9, 0)),
    Part.ArcOfCircle(Part.Circle(App.Vector(-27.5, -24.9, 0), App.Vector(0, 0, 1), 0.5), math.radians(90), math.radians(180)),
    Part.LineSegment(App.Vector(-27.5, -24.4, 0), App.Vector(-24.9, -24.4, 0)),
    Part.ArcOfCircle(Part.Circle(App.Vector(-24.9, -24.9, 0), App.Vector(0, 0, 1), 0.5), math.radians(0), math.radians(90)),
    Part.LineSegment(App.Vector(-24.4, -24.9, 0), App.Vector(-24.4, -27.5, 0)),
    Part.ArcOfCircle(Part.Circle(App.Vector(-24.9, -27.5, 0), App.Vector(0, 0, 1), 0.5), math.radians(-90), math.radians(0)),
    Part.LineSegment(App.Vector(-24.9, -28, 0), App.Vector(-27.5, -28, 0)),
    Part.ArcOfCircle(Part.Circle(App.Vector(-27.5, -27.5, 0), App.Vector(0, 0, 1), 0.5), math.radians(180), math.radians(270)),
    Part.LineSegment(App.Vector(-27.5, 28, 0), App.Vector(-24.9, 28, 0)),
    Part.ArcOfCircle(Part.Circle(App.Vector(-24.9, 27.5, 0), App.Vector(0, 0, 1), 0.5), math.radians(0), math.radians(90)),
    Part.LineSegment(App.Vector(-24.4, 27.5, 0), App.Vector(-24.4, 24.9, 0)),
    Part.ArcOfCircle(Part.Circle(App.Vector(-24.9, 24.9, 0), App.Vector(0, 0, 1), 0.5), math.radians(-90), math.radians(0)),
    Part.LineSegment(App.Vector(-24.9, 24.4, 0), App.Vector(-27.5, 24.4, 0)),
    Part.ArcOfCircle(Part.Circle(App.Vector(-27.5, 24.9, 0), App.Vector(0, 0, 1), 0.5), math.radians(180), math.radians(270)),
    Part.LineSegment(App.Vector(-28, 24.9, 0), App.Vector(-28, 27.5, 0)),
    Part.ArcOfCircle(Part.Circle(App.Vector(-27.5, 27.5, 0), App.Vector(0, 0, 1), 0.5), math.radians(90), math.radians(180)),
    Part.ArcOfCircle(Part.Circle(App.Vector(24.9, 24.9, 0), App.Vector(0, 0, 1), 0.5), math.radians(180), math.radians(270)),
    Part.LineSegment(App.Vector(24.4, 24.9, 0), App.Vector(24.4, 27.5, 0)),
    Part.ArcOfCircle(Part.Circle(App.Vector(24.9, 27.5, 0), App.Vector(0, 0, 1), 0.5), math.radians(90), math.radians(180)),
    Part.LineSegment(App.Vector(24.9, 28, 0), App.Vector(27.5, 28, 0)),
    Part.ArcOfCircle(Part.Circle(App.Vector(27.5, 27.5, 0), App.Vector(0, 0, 1), 0.5), math.radians(0), math.radians(90)),
    Part.LineSegment(App.Vector(28, 27.5, 0), App.Vector(28, 24.9, 0)),
    Part.ArcOfCircle(Part.Circle(App.Vector(27.5, 24.9, 0), App.Vector(0, 0, 1), 0.5), math.radians(-90), math.radians(0)),
    Part.LineSegment(App.Vector(27.5, 24.4, 0), App.Vector(24.9, 24.4, 0)),
    Part.Circle(App.Vector(-14.3, 14.3, 0), App.Vector(0, 0, 1), 3.4),
    Part.Circle(App.Vector(14.3, 14.3, 0), App.Vector(0, 0, 1), 3.4),
], False)
sketch6.addConstraint([
    Sketcher.Constraint("Tangent", 0, 2, 1, 1),
    Sketcher.Constraint("Tangent", 1, 2, 2, 1),
    Sketcher.Constraint("Coincident", 2, 2, 3, 1),
    Sketcher.Constraint("Coincident", 3, 2, 4, 1),
    Sketcher.Constraint("Coincident", 4, 2, 5, 1),
    Sketcher.Constraint("Coincident", 5, 2, 6, 1),
    Sketcher.Constraint("Coincident", 6, 2, 7, 1),
    Sketcher.Constraint("Coincident", 7, 2, 8, 1),
    Sketcher.Constraint("Tangent", 8, 2, 9, 1),
    Sketcher.Constraint("Tangent", 9, 2, 10, 1),
    Sketcher.Constraint("Coincident", 10, 2, 11, 1),
    Sketcher.Constraint("Coincident", 11, 2, 12, 1),
    Sketcher.Constraint("Coincident", 12, 2, 13, 1),
    Sketcher.Constraint("Coincident", 13, 2, 14, 1),
    Sketcher.Constraint("Coincident", 14, 2, 15, 1),
    Sketcher.Constraint("Coincident", 15, 2, 16, 1),
    Sketcher.Constraint("Tangent", 16, 2, 17, 1),
    Sketcher.Constraint("Tangent", 17, 2, 18, 1),
    Sketcher.Constraint("Coincident", 18, 2, 19, 1),
    Sketcher.Constraint("Coincident", 19, 2, 20, 1),
    Sketcher.Constraint("Coincident", 20, 2, 21, 1),
    Sketcher.Constraint("Coincident", 21, 2, 22, 1),
    Sketcher.Constraint("Coincident", 22, 2, 23, 1),
    Sketcher.Constraint("Coincident", 23, 2, 24, 1),
    Sketcher.Constraint("Tangent", 24, 2, 25, 1),
    Sketcher.Constraint("Tangent", 25, 2, 26, 1),
    Sketcher.Constraint("Coincident", 26, 2, 27, 1),
    Sketcher.Constraint("Coincident", 27, 2, 28, 1),
    Sketcher.Constraint("Coincident", 28, 2, 29, 1),
    Sketcher.Constraint("Coincident", 29, 2, 30, 1),
    Sketcher.Constraint("Coincident", 30, 2, 31, 1),
    Sketcher.Constraint("Coincident", 31, 2, 0, 1),
    Sketcher.Constraint("Tangent", 34, 2, 35, 2),
    Sketcher.Constraint("Tangent", 35, 1, 36, 1),
    Sketcher.Constraint("Tangent", 36, 2, 37, 2),
    Sketcher.Constraint("Tangent", 37, 1, 38, 1),
    Sketcher.Constraint("Tangent", 38, 2, 39, 2),
    Sketcher.Constraint("Tangent", 39, 1, 40, 1),
    Sketcher.Constraint("Tangent", 40, 2, 41, 2),
    Sketcher.Constraint("Tangent", 41, 1, 34, 1),
    Sketcher.Constraint("Tangent", 42, 2, 43, 2),
    Sketcher.Constraint("Tangent", 43, 1, 44, 1),
    Sketcher.Constraint("Tangent", 44, 2, 45, 2),
    Sketcher.Constraint("Tangent", 45, 1, 46, 1),
    Sketcher.Constraint("Tangent", 46, 2, 47, 2),
    Sketcher.Constraint("Tangent", 47, 1, 48, 1),
    Sketcher.Constraint("Tangent", 48, 2, 49, 2),
    Sketcher.Constraint("Tangent", 49, 1, 42, 1),
    Sketcher.Constraint("Tangent", 50, 2, 51, 2),
    Sketcher.Constraint("Tangent", 51, 1, 52, 1),
    Sketcher.Constraint("Tangent", 52, 2, 53, 2),
    Sketcher.Constraint("Tangent", 53, 1, 54, 1),
    Sketcher.Constraint("Tangent", 54, 2, 55, 2),
    Sketcher.Constraint("Tangent", 55, 1, 56, 1),
    Sketcher.Constraint("Tangent", 56, 2, 57, 2),
    Sketcher.Constraint("Tangent", 57, 1, 50, 1),
    Sketcher.Constraint("Tangent", 58, 1, 59, 1),
    Sketcher.Constraint("Tangent", 59, 2, 60, 2),
    Sketcher.Constraint("Tangent", 60, 1, 61, 1),
    Sketcher.Constraint("Tangent", 61, 2, 62, 2),
    Sketcher.Constraint("Tangent", 62, 1, 63, 1),
    Sketcher.Constraint("Tangent", 63, 2, 64, 2),
    Sketcher.Constraint("Tangent", 64, 1, 65, 1),
    Sketcher.Constraint("Tangent", 65, 2, 58, 2),
    Sketcher.Constraint("Vertical", 0),
    Sketcher.Constraint("Horizontal", 2),
    Sketcher.Constraint("Horizontal", 4),
    Sketcher.Constraint("Vertical", 5),
    Sketcher.Constraint("Horizontal", 6),
    Sketcher.Constraint("Horizontal", 8),
    Sketcher.Constraint("Vertical", 10),
    Sketcher.Constraint("Vertical", 12),
    Sketcher.Constraint("Horizontal", 13),
    Sketcher.Constraint("Vertical", 14),
    Sketcher.Constraint("Vertical", 16),
    Sketcher.Constraint("Horizontal", 18),
    Sketcher.Constraint("Horizontal", 20),
    Sketcher.Constraint("Vertical", 21),
    Sketcher.Constraint("Horizontal", 22),
    Sketcher.Constraint("Horizontal", 24),
    Sketcher.Constraint("Vertical", 26),
    Sketcher.Constraint("Vertical", 28),
    Sketcher.Constraint("Horizontal", 29),
    Sketcher.Constraint("Vertical", 30),
    Sketcher.Constraint("Horizontal", 34),
    Sketcher.Constraint("Vertical", 36),
    Sketcher.Constraint("Horizontal", 38),
    Sketcher.Constraint("Vertical", 40),
    Sketcher.Constraint("Vertical", 42),
    Sketcher.Constraint("Horizontal", 44),
    Sketcher.Constraint("Vertical", 46),
    Sketcher.Constraint("Horizontal", 48),
    Sketcher.Constraint("Horizontal", 50),
    Sketcher.Constraint("Vertical", 52),
    Sketcher.Constraint("Horizontal", 54),
    Sketcher.Constraint("Vertical", 56),
    Sketcher.Constraint("Vertical", 59),
    Sketcher.Constraint("Horizontal", 61),
    Sketcher.Constraint("Vertical", 63),
    Sketcher.Constraint("Horizontal", 65),
    Sketcher.Constraint("Equal", 1, 9),
    Sketcher.Constraint("Equal", 9, 17),
    Sketcher.Constraint("Equal", 17, 25),
    Sketcher.Constraint("Equal", 25, 32),
    Sketcher.Constraint("Equal", 32, 33),
    Sketcher.Constraint("Equal", 35, 37),
    Sketcher.Constraint("Equal", 37, 39),
    Sketcher.Constraint("Equal", 39, 41),
    Sketcher.Constraint("Equal", 41, 43),
    Sketcher.Constraint("Equal", 43, 45),
    Sketcher.Constraint("Equal", 45, 47),
    Sketcher.Constraint("Equal", 47, 49),
    Sketcher.Constraint("Equal", 49, 51),
    Sketcher.Constraint("Equal", 51, 53),
    Sketcher.Constraint("Equal", 53, 55),
    Sketcher.Constraint("Equal", 55, 57),
    Sketcher.Constraint("Equal", 57, 58),
    Sketcher.Constraint("Equal", 58, 60),
    Sketcher.Constraint("Equal", 60, 62),
    Sketcher.Constraint("Equal", 62, 64),
    Sketcher.Constraint("Equal", 33, 66),
    Sketcher.Constraint("Equal", 66, 67),
    Sketcher.Constraint("Symmetric", 1, 3, 17, 3, -1, 1),
    Sketcher.Constraint("Symmetric", 9, 3, 25, 3, -1, 1),
    Sketcher.Constraint("Symmetric", 35, 3, 51, 3, -1, 1),
    Sketcher.Constraint("Symmetric", 39, 3, 55, 3, -1, 1),
    Sketcher.Constraint("Symmetric", 45, 3, 58, 3, -1, 1),
    Sketcher.Constraint("Symmetric", 49, 3, 62, 3, -1, 1),
    Sketcher.Constraint("Symmetric", 33, 3, 66, 3, -1, 1),
    Sketcher.Constraint("Symmetric", 32, 3, 67, 3, -1, 1),
    Sketcher.Constraint("Symmetric", 3, 2, 19, 2, -1, 1),
    Sketcher.Constraint("Symmetric", 5, 2, 21, 2, -1, 1),
    Sketcher.Constraint("Symmetric", 11, 2, 27, 2, -1, 1),
    Sketcher.Constraint("Symmetric", 13, 2, 29, 2, -1, 1),
    Sketcher.Constraint("Symmetric", 9, 3, 17, 3, -2),
    Sketcher.Constraint("Symmetric", 32, 3, 33, 3, -2),
    Sketcher.Constraint("Symmetric", 39, 3, 43, 3, -2),
    Sketcher.Constraint("Symmetric", 35, 3, 47, 3, -2),
    Sketcher.Constraint("Symmetric", 11, 2, 14, 2, -2),
    Sketcher.Constraint("Symmetric", 6, 2, 19, 2, -2),
    Sketcher.Constraint("Perpendicular", 3, 11),
    Sketcher.Constraint("Perpendicular", 7, 15),
    Sketcher.Constraint("Perpendicular", 11, 19),
    Sketcher.Constraint("Perpendicular", 15, 23),
    Sketcher.Constraint("Perpendicular", 19, 27),
    Sketcher.Constraint("Perpendicular", 23, 31),
    Sketcher.Constraint("Horizontal", 10, 2, 15, 2),
    Sketcher.Constraint("Horizontal", 27, 2, 30, 2),
    Sketcher.Constraint("Horizontal", 29, 2, 34, 2),
    Sketcher.Constraint("Vertical", 19, 2, 22, 2),
    Sketcher.Constraint("Vertical", 21, 2, 39, 1),
    Sketcher.Constraint("Equal", 24, 0),
    Sketcher.Constraint("Equal", 29, 5),
    Sketcher.Constraint("Equal", 22, 12),
    Sketcher.Constraint("Equal", 65, 36),
    Sketcher.Constraint("Equal", 7, 11),
    Sketcher.Constraint("Diameter", 32, 6.8),
    Sketcher.Constraint("Radius", 35, 0.5),
    Sketcher.Constraint("DistanceX", 13, 1, 13, 2, 9.9),
    Sketcher.Constraint("DistanceX", 34, 2, 34, 1, 2.6),
    Sketcher.Constraint("DistanceX", 4, 2, -1, 1, 28.0),
    Sketcher.Constraint("DistanceX", 2, 2, -1, 1, 18.8),
    Sketcher.Constraint("DistanceX", 4, 2, 4, 1, 4.438928),
    Sketcher.Constraint("Distance", 3, 6.794229),
    Sketcher.Constraint("DistanceX", 32, 3, -1, 1, 14.298518),
    Sketcher.Constraint("DistanceY", 32, 3, -1, 1, 14.298518),
])
pocket5 = doc.addObject("PartDesign::Pocket", "Pocket004")
body.addObject(pocket5)
pocket5.Profile = sketch6
pocket5.Length = 1000
pocket5.Reversed = True
doc.recompute()

fillet = doc.addObject("PartDesign::Fillet", "Fillet")
body.addObject(fillet)
fillet.Base = (pocket5, edges_at(pocket5, [
    (28, 150, 19.1),
    (28, 150, 10.9),
    (29, 150, 10.9),
    (29, 150, 9.9),
    (30, 150, 9.9),
    (30, 150, 20.1),
    (29, 150, 20.1),
    (29, 150, 19.1),
    (28, 150, -10.9),
    (28, 150, -19.1),
    (29, 150, -19.1),
    (29, 150, -20.1),
    (30, 150, -20.1),
    (30, 150, -9.9),
    (29, 150, -9.9),
    (29, 150, -10.9),
]))
fillet.Radius = 0.2
doc.recompute()

fillet2 = doc.addObject("PartDesign::Fillet", "Fillet001")
body.addObject(fillet2)
fillet2.Base = (fillet, edges_at(fillet, [
    (19.1, 150, -28),
    (10.9, 150, -28),
    (10.9, 150, -29),
    (9.9, 150, -29),
    (9.9, 150, -30),
    (20.1, 150, -30),
    (20.1, 150, -29),
    (19.1, 150, -29),
    (-10.9, 150, -28),
    (-19.1, 150, -28),
    (-19.6, 300, -29),
    (-19.1, 150, -29),
    (-20.1, 300, -29.5),
    (-20.1, 150, -29),
    (-20.1, 150, -30),
    (-9.9, 150, -30),
    (-9.9, 150, -29),
    (-10.9, 150, -29),
    (-19.6, 0, -29),
    (-20.1, 0, -29.5),
]))
fillet2.Radius = 0.2
doc.recompute()

fillet3 = doc.addObject("PartDesign::Fillet", "Fillet002")
body.addObject(fillet3)
fillet3.Base = (fillet2, edges_at(fillet2, [
    (-28, 150, -10.9),
    (-29, 150, -10.9),
    (-29, 150, -9.9),
    (-30, 150, -9.9),
    (-30, 150, -20.1),
    (-29, 150, -20.1),
    (-29, 150, -19.1),
    (-28, 150, 19.1),
    (-29, 150, 19.1),
    (-29, 150, 20.1),
    (-30, 150, 20.1),
    (-30, 150, 9.9),
    (-29, 150, 9.9),
    (-29, 150, 10.9),
]))
fillet3.Radius = 0.2
doc.recompute()

fillet4 = doc.addObject("PartDesign::Fillet", "Fillet003")
body.addObject(fillet4)
fillet4.Base = (fillet3, edges_at(fillet3, [
    (-19.1, 150, 28),
    (-10.9, 150, 28),
    (-10.9, 150, 29),
    (-9.9, 150, 29),
    (-9.9, 150, 30),
    (-20.1, 150, 30),
    (-20.1, 150, 29),
    (-19.1, 150, 29),
    (10.9, 150, 28),
    (19.1, 150, 28),
    (19.1, 150, 29),
    (20.1, 150, 29),
    (20.1, 150, 30),
    (9.9, 150, 30),
    (9.9, 150, 29),
    (10.9, 150, 29),
]))
fillet4.Radius = 0.2

doc.recompute()
